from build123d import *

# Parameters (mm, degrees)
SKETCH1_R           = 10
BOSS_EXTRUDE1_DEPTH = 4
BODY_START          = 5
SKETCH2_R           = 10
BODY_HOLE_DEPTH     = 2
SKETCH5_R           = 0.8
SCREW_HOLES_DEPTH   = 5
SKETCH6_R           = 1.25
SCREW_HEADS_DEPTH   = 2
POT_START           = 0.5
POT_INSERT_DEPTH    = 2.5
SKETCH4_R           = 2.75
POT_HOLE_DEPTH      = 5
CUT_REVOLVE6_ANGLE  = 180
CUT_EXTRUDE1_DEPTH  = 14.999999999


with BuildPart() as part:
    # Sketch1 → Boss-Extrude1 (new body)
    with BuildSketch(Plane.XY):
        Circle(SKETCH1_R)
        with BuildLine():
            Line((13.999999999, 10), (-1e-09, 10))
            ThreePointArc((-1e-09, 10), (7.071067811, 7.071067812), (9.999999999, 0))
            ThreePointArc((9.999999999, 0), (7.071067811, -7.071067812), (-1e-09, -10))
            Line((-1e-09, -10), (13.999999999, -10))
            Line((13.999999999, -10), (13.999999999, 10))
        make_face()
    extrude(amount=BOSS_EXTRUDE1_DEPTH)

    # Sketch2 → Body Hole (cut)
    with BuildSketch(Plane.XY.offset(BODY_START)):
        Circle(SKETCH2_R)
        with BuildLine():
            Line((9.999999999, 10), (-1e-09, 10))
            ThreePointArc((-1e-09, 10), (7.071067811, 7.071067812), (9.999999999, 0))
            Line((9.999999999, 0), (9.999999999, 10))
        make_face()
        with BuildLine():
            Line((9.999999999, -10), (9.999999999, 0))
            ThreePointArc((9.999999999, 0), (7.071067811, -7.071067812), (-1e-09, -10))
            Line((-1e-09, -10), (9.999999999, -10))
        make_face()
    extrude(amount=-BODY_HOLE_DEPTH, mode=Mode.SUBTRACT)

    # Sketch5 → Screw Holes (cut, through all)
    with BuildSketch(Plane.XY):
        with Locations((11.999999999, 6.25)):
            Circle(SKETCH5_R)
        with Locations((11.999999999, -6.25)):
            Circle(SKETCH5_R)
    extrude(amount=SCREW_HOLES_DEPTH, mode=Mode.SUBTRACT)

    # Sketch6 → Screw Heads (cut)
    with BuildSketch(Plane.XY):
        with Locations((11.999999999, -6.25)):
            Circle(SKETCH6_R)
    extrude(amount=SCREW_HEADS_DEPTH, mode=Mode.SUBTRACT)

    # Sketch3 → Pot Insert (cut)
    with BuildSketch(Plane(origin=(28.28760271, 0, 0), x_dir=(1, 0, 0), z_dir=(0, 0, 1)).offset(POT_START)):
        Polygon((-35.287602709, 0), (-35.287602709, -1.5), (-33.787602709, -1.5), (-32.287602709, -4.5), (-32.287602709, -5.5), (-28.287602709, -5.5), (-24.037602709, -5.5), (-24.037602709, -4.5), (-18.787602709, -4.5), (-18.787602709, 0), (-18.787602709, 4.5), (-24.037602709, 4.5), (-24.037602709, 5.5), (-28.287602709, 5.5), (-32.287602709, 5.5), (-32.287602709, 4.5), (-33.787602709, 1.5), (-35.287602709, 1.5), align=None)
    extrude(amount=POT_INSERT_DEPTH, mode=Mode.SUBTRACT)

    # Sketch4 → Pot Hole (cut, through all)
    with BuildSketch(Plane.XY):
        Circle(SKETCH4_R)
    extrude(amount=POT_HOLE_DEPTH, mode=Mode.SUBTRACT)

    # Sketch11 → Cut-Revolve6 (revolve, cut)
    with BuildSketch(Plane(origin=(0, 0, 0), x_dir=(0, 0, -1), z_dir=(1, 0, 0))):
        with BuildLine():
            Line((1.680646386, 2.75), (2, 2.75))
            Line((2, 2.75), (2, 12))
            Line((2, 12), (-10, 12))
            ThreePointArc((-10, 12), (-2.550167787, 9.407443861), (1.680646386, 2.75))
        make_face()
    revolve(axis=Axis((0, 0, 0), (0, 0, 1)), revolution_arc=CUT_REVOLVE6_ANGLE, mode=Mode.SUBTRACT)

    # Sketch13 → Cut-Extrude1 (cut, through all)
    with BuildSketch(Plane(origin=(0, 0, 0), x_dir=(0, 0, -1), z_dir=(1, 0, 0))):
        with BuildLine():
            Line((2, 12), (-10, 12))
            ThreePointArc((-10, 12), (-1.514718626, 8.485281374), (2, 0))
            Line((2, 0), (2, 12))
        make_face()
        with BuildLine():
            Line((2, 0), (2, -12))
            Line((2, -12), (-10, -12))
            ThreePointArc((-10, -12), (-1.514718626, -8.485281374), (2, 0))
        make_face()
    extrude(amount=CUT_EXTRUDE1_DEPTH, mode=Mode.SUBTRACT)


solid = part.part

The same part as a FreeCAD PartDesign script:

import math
import FreeCAD as App
import Part
import Sketcher
from FreeCAD import Vector
Q = App.Units.Quantity


def add_polygon(sketch, points):
    """Adds a closed chain of lines whose ends are joined by coincident constraints."""
    first, n = sketch.GeometryCount, len(points)
    for a, b in zip(points, points[1:] + points[:1]):
        sketch.addGeometry(Part.LineSegment(App.Vector(*a, 0), App.Vector(*b, 0)), False)
    for i in range(n):
        sketch.addConstraint(Sketcher.Constraint("Coincident", first + i, 2, first + (i + 1) % n, 1))

doc = App.newDocument("Part")
params = doc.addObject("Spreadsheet::Sheet", "Params")
for row, (alias, value) in enumerate([
    ("sketch1_radius", "10 mm"),
    ("sketch1_width", "14 mm"),
    ("pad1_length", "4 mm"),
    ("sketch2_radius", "10 mm"),
    ("sketch2_width", "10 mm"),
    ("pocket1_length", "2 mm"),
    ("sketch3_diameter", "1.6 mm"),
    ("sketch4_diameter", "2.5 mm"),
    ("pocket3_length", "2 mm"),
    ("sketch5_height", "1 mm"),
    ("sketch5_height2", "9 mm"),
    ("sketch5_height3", "3 mm"),
    ("sketch5_width", "1.5 mm"),
    ("sketch5_width2", "8.25 mm"),
    ("pocket4_length", "2.5 mm"),
    ("sketch6_diameter", "5.5 mm"),
    ("sketch7_radius", "12 mm"),
    ("sketch7_height", "12 mm"),
    ("sketch7_width", "9.25 mm"),
    ("groove_angle", "180 deg"),
    ("sketch8_radius", "12 mm"),
], start=1):
    params.set(f"A{row}", alias)
    params.set(f"B{row}", "=" + value)
    params.setAlias(f"B{row}", alias)

body = doc.addObject("PartDesign::Body", "Body")

# Sketch on XY plane
sketch1 = doc.addObject("Sketcher::SketchObject", "Sketch")
body.addObject(sketch1)
sketch1.AttachmentSupport = (doc.XY_Plane, [""])
sketch1.MapMode = "FlatFace"
sketch1.addGeometry(Part.ArcOfCircle(Part.Circle(Vector(0, 0, 0), Vector(0, 0, 1), 10), math.radians(90), math.radians(270)), False)
sketch1.addGeometry(Part.LineSegment(Vector(0, -10, 0), Vector(14, -10, 0)), False)
sketch1.addGeometry(Part.LineSegment(Vector(14, -10, 0), Vector(14, 10, 0)), False)
sketch1.addGeometry(Part.LineSegment(Vector(14, 10, 0), Vector(0, 10, 0)), False)
sketch1.addConstraint(Sketcher.Constraint("Tangent", 0, 2, 1, 1))
sketch1.addConstraint(Sketcher.Constraint("Coincident", 1, 2, 2, 1))
sketch1.addConstraint(Sketcher.Constraint("Coincident", 2, 2, 3, 1))
sketch1.addConstraint(Sketcher.Constraint("Tangent", 3, 2, 0, 1))
sketch1.addConstraint(Sketcher.Constraint("Horizontal", 1))
sketch1.addConstraint(Sketcher.Constraint("Vertical", 2))
sketch1.addConstraint(Sketcher.Constraint("Horizontal", 3))
sketch1.addConstraint(Sketcher.Constraint("Coincident", 0, 3, -1, 1))
sketch1.addConstraint(Sketcher.Constraint("Radius", 0, Q("10 mm")))
sketch1.addConstraint(Sketcher.Constraint("DistanceX", 1, 1, 1, 2, Q("14 mm")))
sketch1.setExpression("Constraints[8]", "Params.sketch1_radius")
sketch1.setExpression("Constraints[9]", "Params.sketch1_width")
pad1 = doc.addObject("PartDesign::Pad", "Pad")
body.addObject(pad1)
pad1.Profile = sketch1
pad1.setExpression("Length", "Params.pad1_length")

# Sketch on XY plane
sketch2 = doc.addObject("Sketcher::SketchObject", "Sketch001")
body.addObject(sketch2)
sketch2.AttachmentSupport = (doc.XY_Plane, [""])
sketch2.MapMode = "FlatFace"
sketch2.AttachmentOffset = App.Placement(Vector(0, 0, 5), App.Rotation())
sketch2.addGeometry(Part.ArcOfCircle(Part.Circle(Vector(0, 0, 0), Vector(0, 0, 1), 10), math.radians(90), math.radians(270)), False)
sketch2.addGeometry(Part.LineSegment(Vector(0, -10, 0), Vector(10, -10, 0)), False)
sketch2.addGeometry(Part.LineSegment(Vector(10, -10, 0), Vector(10, 10, 0)), False)
sketch2.addGeometry(Part.LineSegment(Vector(10, 10, 0), Vector(0, 10, 0)), False)
sketch2.addConstraint(Sketcher.Constraint("Tangent", 0, 2, 1, 1))
sketch2.addConstraint(Sketcher.Constraint("Coincident", 1, 2, 2, 1))
sketch2.addConstraint(Sketcher.Constraint("Coincident", 2, 2, 3, 1))
sketch2.addConstraint(Sketcher.Constraint("Tangent", 3, 2, 0, 1))
sketch2.addConstraint(Sketcher.Constraint("Horizontal", 1))
sketch2.addConstraint(Sketcher.Constraint("Vertical", 2))
sketch2.addConstraint(Sketcher.Constraint("Horizontal", 3))
sketch2.addConstraint(Sketcher.Constraint("Coincident", 0, 3, -1, 1))
sketch2.addConstraint(Sketcher.Constraint("Radius", 0, Q("10 mm")))
sketch2.addConstraint(Sketcher.Constraint("DistanceX", 1, 1, 1, 2, Q("10 mm")))
sketch2.setExpression("Constraints[8]", "Params.sketch2_radius")
sketch2.setExpression("Constraints[9]", "Params.sketch2_width")
pocket1 = doc.addObject("PartDesign::Pocket", "Pocket")
body.addObject(pocket1)
pocket1.Profile = sketch2
pocket1.setExpression("Length", "Params.pocket1_length")

# Sketch on XY plane
sketch3 = doc.addObject("Sketcher::SketchObject", "Sketch002")
body.addObject(sketch3)
sketch3.AttachmentSupport = (doc.XY_Plane, [""])
sketch3.MapMode = "FlatFace"
sketch3.addGeometry(Part.Circle(Vector(12, 6.25, 0), Vector(0, 0, 1), 0.8), False)
sketch3.addGeometry(Part.Circle(Vector(12, -6.25, 0), Vector(0, 0, 1), 0.8), False)
sketch3.addConstraint(Sketcher.Constraint("Equal", 0, 1))
sketch3.addConstraint(Sketcher.Constraint("Symmetric", 0, 3, 1, 3, -1))
sketch3.addConstraint(Sketcher.Constraint("Diameter", 0, Q("1.6 mm")))
sketch3.addConstraint(Sketcher.Constraint("DistanceX", -1, 1, 0, 3, Q("12 mm")))
sketch3.addConstraint(Sketcher.Constraint("DistanceY", 1, 3, 0, 3, Q("12.5 mm")))
sketch3.setExpression("Constraints[2]", "Params.sketch3_diameter")
pocket2 = doc.addObject("PartDesign::Pocket", "Pocket001")
body.addObject(pocket2)
pocket2.Profile = sketch3
pocket2.Type = "ThroughAll"
pocket2.Reversed = True

# Sketch on XY plane
sketch4 = doc.addObject("Sketcher::SketchObject", "Sketch003")
body.addObject(sketch4)
sketch4.AttachmentSupport = (doc.XY_Plane, [""])
sketch4.MapMode = "FlatFace"
sketch4.addGeometry(Part.Circle(Vector(12, -6.25, 0), Vector(0, 0, 1), 1.25), False)
sketch4.addConstraint(Sketcher.Constraint("Diameter", 0, Q("2.5 mm")))
sketch4.addConstraint(Sketcher.Constraint("DistanceX", -1, 1, 0, 3, Q("12 mm")))
sketch4.addConstraint(Sketcher.Constraint("DistanceY", 0, 3, -1, 1, Q("6.25 mm")))
sketch4.setExpression("Constraints[0]", "Params.sketch4_diameter")
pocket3 = doc.addObject("PartDesign::Pocket", "Pocket002")
body.addObject(pocket3)
pocket3.Profile = sketch4
pocket3.setExpression("Length", "Params.pocket3_length")
pocket3.Reversed = True

# Sketch on XY plane
sketch5 = doc.addObject("Sketcher::SketchObject", "Sketch004")
body.addObject(sketch5)
sketch5.AttachmentSupport = (doc.XY_Plane, [""])
sketch5.MapMode = "FlatFace"
sketch5.AttachmentOffset = App.Placement(Vector(0, 0, 0.5), App.Rotation())
add_polygon(sketch5, [(-7, -1.5), (-5.5, -1.5), (-4, -4.5), (-4, -5.5), (4.25, -5.5), (4.25, -4.5), (9.5, -4.5), (9.5, 4.5), (4.25, 4.5), (4.25, 5.5), (-4, 5.5), (-4, 4.5), (-5.5, 1.5), (-7, 1.5)])  # lines 0-13
sketch5.addConstraint(Sketcher.Constraint("Horizontal", 0))
sketch5.addConstraint(Sketcher.Constraint("Vertical", 2))
sketch5.addConstraint(Sketcher.Constraint("Horizontal", 3))
sketch5.addConstraint(Sketcher.Constraint("Vertical", 4))
sketch5.addConstraint(Sketcher.Constraint("Horizontal", 5))
sketch5.addConstraint(Sketcher.Constraint("Vertical", 6))
sketch5.addConstraint(Sketcher.Constraint("Horizontal", 7))
sketch5.addConstraint(Sketcher.Constraint("Vertical", 8))
sketch5.addConstraint(Sketcher.Constraint("Horizontal", 9))
sketch5.addConstraint(Sketcher.Constraint("Vertical", 10))
sketch5.addConstraint(Sketcher.Constraint("Horizontal", 12))
sketch5.addConstraint(Sketcher.Constraint("Vertical", 13))
sketch5.addConstraint(Sketcher.Constraint("Symmetric", 4, 2, 7, 2, -1))
sketch5.addConstraint(Sketcher.Constraint("Symmetric", 2, 2, 9, 2, -1))
sketch5.addConstraint(Sketcher.Constraint("Symmetric", 0, 2, 11, 2, -1))
sketch5.addConstraint(Sketcher.Constraint("Horizontal", 1, 2, 4, 2))
sketch5.addConstraint(Sketcher.Constraint("Horizontal", 7, 2, 10, 2))
sketch5.addConstraint(Sketcher.Constraint("DistanceY", 2, 2, 2, 1, Q("1 mm")))
sketch5.addConstraint(Sketcher.Constraint("DistanceY", 6, 1, 6, 2, Q("9 mm")))
sketch5.addConstraint(Sketcher.Constraint("DistanceY", 13, 2, 13, 1, Q("3 mm")))
sketch5.addConstraint(Sketcher.Constraint("DistanceX", 0, 1, 0, 2, Q("1.5 mm")))
sketch5.addConstraint(Sketcher.Constraint("DistanceX", 1, 2, -1, 1, Q("4 mm")))
sketch5.addConstraint(Sketcher.Constraint("DistanceX", 12, 2, -1, 1, Q("7 mm")))
sketch5.addConstraint(Sketcher.Constraint("DistanceX", 0, 2, 5, 2, Q("15 mm")))
sketch5.addConstraint(Sketcher.Constraint("DistanceX", 3, 1, 3, 2, Q("8.25 mm")))
sketch5.setExpression("Constraints[31]", "Params.sketch5_height")
sketch5.setExpression("Constraints[32]", "Params.sketch5_height2")
sketch5.setExpression("Constraints[33]", "Params.sketch5_height3")
sketch5.setExpression("Constraints[34]", "Params.sketch5_width")
sketch5.setExpression("Constraints[38]", "Params.sketch5_width2")
pocket4 = doc.addObject("PartDesign::Pocket", "Pocket003")
body.addObject(pocket4)
pocket4.Profile = sketch5
pocket4.setExpression("Length", "Params.pocket4_length")
pocket4.Reversed = True

# Sketch on XY plane
sketch6 = doc.addObject("Sketcher::SketchObject", "Sketch005")
body.addObject(sketch6)
sketch6.AttachmentSupport = (doc.XY_Plane, [""])
sketch6.MapMode = "FlatFace"
sketch6.addGeometry(Part.Circle(Vector(0, 0, 0), Vector(0, 0, 1), 2.75), False)
sketch6.addConstraint(Sketcher.Constraint("Coincident", 0, 3, -1, 1))
sketch6.addConstraint(Sketcher.Constraint("Diameter", 0, Q("5.5 mm")))
sketch6.setExpression("Constraints[1]", "Params.sketch6_diameter")
pocket5 = doc.addObject("PartDesign::Pocket", "Pocket004")
body.addObject(pocket5)
pocket5.Profile = sketch6
pocket5.Type = "ThroughAll"
pocket5.Reversed = True

# Sketch on YZ plane
sketch7 = doc.addObject("Sketcher::SketchObject", "Sketch006")
body.addObject(sketch7)
sketch7.AttachmentSupport = (doc.YZ_Plane, [""])
sketch7.MapMode = "FlatFace"
sketch7.addGeometry(Part.LineSegment(Vector(2.75, -1.680646, 0), Vector(2.75, -2, 0)), False)
sketch7.addGeometry(Part.LineSegment(Vector(2.75, -2, 0), Vector(12, -2, 0)), False)
sketch7.addGeometry(Part.LineSegment(Vector(12, -2, 0), Vector(12, 10, 0)), False)
sketch7.addGeometry(Part.ArcOfCircle(Part.Circle(Vector(0, 10, 0), Vector(0, 0, 1), 12), math.radians(-76.751985), math.radians(0)), False)
sketch7.addConstraint(Sketcher.Constraint("Coincident", 0, 2, 1, 1))
sketch7.addConstraint(Sketcher.Constraint("Coincident", 1, 2, 2, 1))
sketch7.addConstraint(Sketcher.Constraint("Tangent", 2, 2, 3, 2))
sketch7.addConstraint(Sketcher.Constraint("Coincident", 3, 1, 0, 1))
sketch7.addConstraint(Sketcher.Constraint("Vertical", 0))
sketch7.addConstraint(Sketcher.Constraint("Horizontal", 1))
sketch7.addConstraint(Sketcher.Constraint("Vertical", 2))
sketch7.addConstraint(Sketcher.Constraint("PointOnObject", 3, 3, -2))
sketch7.addConstraint(Sketcher.Constraint("Radius", 3, Q("12 mm")))
sketch7.addConstraint(Sketcher.Constraint("DistanceY", 2, 1, 2, 2, Q("12 mm")))
sketch7.addConstraint(Sketcher.Constraint("DistanceY", -1, 1, 3, 3, Q("10 mm")))
sketch7.addConstraint(Sketcher.Constraint("DistanceX", 1, 1, 1, 2, Q("9.25 mm")))
sketch7.setExpression("Constraints[8]", "Params.sketch7_radius")
sketch7.setExpression("Constraints[9]", "Params.sketch7_height")
sketch7.setExpression("Constraints[11]", "Params.sketch7_width")
groove = doc.addObject("PartDesign::Groove", "Groove")
body.addObject(groove)
groove.Profile = sketch7
groove.ReferenceAxis = (sketch7, ["V_Axis"])
groove.setExpression("Angle", "Params.groove_angle")

# Sketch on YZ plane
sketch8 = doc.addObject("Sketcher::SketchObject", "Sketch007")
body.addObject(sketch8)
sketch8.AttachmentSupport = (doc.YZ_Plane, [""])
sketch8.MapMode = "FlatFace"
sketch8.addGeometry(Part.LineSegment(Vector(12, -2, 0), Vector(12, 10, 0)), False)
sketch8.addGeometry(Part.ArcOfCircle(Part.Circle(Vector(0, 10, 0), Vector(0, 0, 1), 12), math.radians(-90), math.radians(0)), False)
sketch8.addGeometry(Part.LineSegment(Vector(0, -2, 0), Vector(12, -2, 0)), False)
sketch8.addGeometry(Part.LineSegment(Vector(-12, -2, 0), Vector(0, -2, 0)), False)
sketch8.addGeometry(Part.ArcOfCircle(Part.Circle(Vector(0, 10, 0), Vector(0, 0, 1), 12), math.radians(-180), math.radians(-90)), False)
sketch8.addGeometry(Part.LineSegment(Vector(-12, 10, 0), Vector(-12, -2, 0)), False)
sketch8.addConstraint(Sketcher.Constraint("Tangent", 0, 2, 1, 2))
sketch8.addConstraint(Sketcher.Constraint("Tangent", 1, 1, 2, 1))
sketch8.addConstraint(Sketcher.Constraint("Coincident", 2, 2, 0, 1))
sketch8.addConstraint(Sketcher.Constraint("Tangent", 3, 2, 4, 2))
sketch8.addConstraint(Sketcher.Constraint("Tangent", 4, 1, 5, 1))
sketch8.addConstraint(Sketcher.Constraint("Coincident", 5, 2, 3, 1))
sketch8.addConstraint(Sketcher.Constraint("Vertical", 0))
sketch8.addConstraint(Sketcher.Constraint("Horizontal", 2))
sketch8.addConstraint(Sketcher.Constraint("Horizontal", 3))
sketch8.addConstraint(Sketcher.Constraint("Vertical", 5))
sketch8.addConstraint(Sketcher.Constraint("Coincident", 4, 3, 1, 3))
sketch8.addConstraint(Sketcher.Constraint("Equal", 1, 4))
sketch8.addConstraint(Sketcher.Constraint("PointOnObject", 1, 3, -2))
sketch8.addConstraint(Sketcher.Constraint("Radius", 1, Q("12 mm")))
sketch8.addConstraint(Sketcher.Constraint("DistanceY", -1, 1, 1, 3, Q("10 mm")))
sketch8.setExpression("Constraints[13]", "Params.sketch8_radius")
pocket6 = doc.addObject("PartDesign::Pocket", "Pocket005")
body.addObject(pocket6)
pocket6.Profile = sketch8
pocket6.Type = "ThroughAll"
pocket6.Reversed = True

doc.recompute()
